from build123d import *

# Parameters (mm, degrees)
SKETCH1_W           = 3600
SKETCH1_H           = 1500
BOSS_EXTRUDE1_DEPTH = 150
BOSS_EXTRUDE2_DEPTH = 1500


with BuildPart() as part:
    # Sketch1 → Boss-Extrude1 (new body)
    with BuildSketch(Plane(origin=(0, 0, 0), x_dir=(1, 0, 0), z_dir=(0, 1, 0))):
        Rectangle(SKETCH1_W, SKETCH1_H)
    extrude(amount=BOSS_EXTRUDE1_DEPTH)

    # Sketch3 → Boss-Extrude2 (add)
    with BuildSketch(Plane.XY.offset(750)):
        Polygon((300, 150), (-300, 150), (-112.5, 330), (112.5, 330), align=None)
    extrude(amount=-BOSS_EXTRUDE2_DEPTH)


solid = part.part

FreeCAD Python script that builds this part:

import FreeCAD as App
import Part
import Sketcher

V = App.Vector
Q = App.Units.Quantity


def add_polygon(sketch, points):
    """Adds a closed chain of lines whose ends are joined by coincident constraints."""
    first, n = sketch.GeometryCount, len(points)
    for a, b in zip(points, points[1:] + points[:1]):
        sketch.addGeometry(Part.LineSegment(App.Vector(*a, 0), App.Vector(*b, 0)), False)
    for i in range(n):
        sketch.addConstraint(Sketcher.Constraint("Coincident", first + i, 2, first + (i + 1) % n, 1))

doc = App.newDocument("Part")
body = doc.addObject("PartDesign::Body", "Body")

sketch1 = body.newObject("Sketcher::SketchObject", "Sketch")
sketch1.AttachmentSupport = (doc.getObject("XZ_Plane"), [""])
sketch1.MapMode = "FlatFace"
add_polygon(sketch1, [(-1800, -750), (-1800, 750), (1800, 750), (1800, -750)])
sketch1.addConstraint([
    Sketcher.Constraint("Vertical", 0),
    Sketcher.Constraint("Horizontal", 1),
    Sketcher.Constraint("Vertical", 2),
    Sketcher.Constraint("Horizontal", 3),
    Sketcher.Constraint("Symmetric", 0, 2, 2, 2, -1, 1),
    Sketcher.Constraint("DistanceX", 1, 1, 1, 2, Q("3600 mm")),
    Sketcher.Constraint("DistanceY", 0, 1, 0, 2, Q("1500 mm")),
])
pad1 = body.newObject("PartDesign::Pad", "Pad")
pad1.Profile = sketch1
pad1.Length = 150
pad1.Reversed = True

sketch2 = body.newObject("Sketcher::SketchObject", "Sketch001")
sketch2.AttachmentSupport = (doc.getObject("XY_Plane"), [""])
sketch2.MapMode = "FlatFace"
sketch2.AttachmentOffset = App.Placement(V(0, 0, 750), App.Rotation())
add_polygon(sketch2, [(-300, 150), (300, 150), (112, 330), (-112, 330)])
sketch2.addConstraint([
    Sketcher.Constraint("Horizontal", 0),
    Sketcher.Constraint("Horizontal", 2),
    Sketcher.Constraint("Equal", 1, 3),
    Sketcher.Constraint("DistanceX", 0, 1, 0, 2, Q("600 mm")),
    Sketcher.Constraint("DistanceX", 2, 2, 2, 1, Q("225 mm")),
    Sketcher.Constraint("DistanceX", -1, 1, 0, 2, Q("300 mm")),
    Sketcher.Constraint("DistanceY", -1, 1, 0, 2, Q("150 mm")),
    Sketcher.Constraint("DistanceY", -1, 1, 1, 2, Q("330 mm")),
])
pad2 = body.newObject("PartDesign::Pad", "Pad001")
pad2.Profile = sketch2
pad2.Length = 1500
pad2.Reversed = True

doc.recompute()
